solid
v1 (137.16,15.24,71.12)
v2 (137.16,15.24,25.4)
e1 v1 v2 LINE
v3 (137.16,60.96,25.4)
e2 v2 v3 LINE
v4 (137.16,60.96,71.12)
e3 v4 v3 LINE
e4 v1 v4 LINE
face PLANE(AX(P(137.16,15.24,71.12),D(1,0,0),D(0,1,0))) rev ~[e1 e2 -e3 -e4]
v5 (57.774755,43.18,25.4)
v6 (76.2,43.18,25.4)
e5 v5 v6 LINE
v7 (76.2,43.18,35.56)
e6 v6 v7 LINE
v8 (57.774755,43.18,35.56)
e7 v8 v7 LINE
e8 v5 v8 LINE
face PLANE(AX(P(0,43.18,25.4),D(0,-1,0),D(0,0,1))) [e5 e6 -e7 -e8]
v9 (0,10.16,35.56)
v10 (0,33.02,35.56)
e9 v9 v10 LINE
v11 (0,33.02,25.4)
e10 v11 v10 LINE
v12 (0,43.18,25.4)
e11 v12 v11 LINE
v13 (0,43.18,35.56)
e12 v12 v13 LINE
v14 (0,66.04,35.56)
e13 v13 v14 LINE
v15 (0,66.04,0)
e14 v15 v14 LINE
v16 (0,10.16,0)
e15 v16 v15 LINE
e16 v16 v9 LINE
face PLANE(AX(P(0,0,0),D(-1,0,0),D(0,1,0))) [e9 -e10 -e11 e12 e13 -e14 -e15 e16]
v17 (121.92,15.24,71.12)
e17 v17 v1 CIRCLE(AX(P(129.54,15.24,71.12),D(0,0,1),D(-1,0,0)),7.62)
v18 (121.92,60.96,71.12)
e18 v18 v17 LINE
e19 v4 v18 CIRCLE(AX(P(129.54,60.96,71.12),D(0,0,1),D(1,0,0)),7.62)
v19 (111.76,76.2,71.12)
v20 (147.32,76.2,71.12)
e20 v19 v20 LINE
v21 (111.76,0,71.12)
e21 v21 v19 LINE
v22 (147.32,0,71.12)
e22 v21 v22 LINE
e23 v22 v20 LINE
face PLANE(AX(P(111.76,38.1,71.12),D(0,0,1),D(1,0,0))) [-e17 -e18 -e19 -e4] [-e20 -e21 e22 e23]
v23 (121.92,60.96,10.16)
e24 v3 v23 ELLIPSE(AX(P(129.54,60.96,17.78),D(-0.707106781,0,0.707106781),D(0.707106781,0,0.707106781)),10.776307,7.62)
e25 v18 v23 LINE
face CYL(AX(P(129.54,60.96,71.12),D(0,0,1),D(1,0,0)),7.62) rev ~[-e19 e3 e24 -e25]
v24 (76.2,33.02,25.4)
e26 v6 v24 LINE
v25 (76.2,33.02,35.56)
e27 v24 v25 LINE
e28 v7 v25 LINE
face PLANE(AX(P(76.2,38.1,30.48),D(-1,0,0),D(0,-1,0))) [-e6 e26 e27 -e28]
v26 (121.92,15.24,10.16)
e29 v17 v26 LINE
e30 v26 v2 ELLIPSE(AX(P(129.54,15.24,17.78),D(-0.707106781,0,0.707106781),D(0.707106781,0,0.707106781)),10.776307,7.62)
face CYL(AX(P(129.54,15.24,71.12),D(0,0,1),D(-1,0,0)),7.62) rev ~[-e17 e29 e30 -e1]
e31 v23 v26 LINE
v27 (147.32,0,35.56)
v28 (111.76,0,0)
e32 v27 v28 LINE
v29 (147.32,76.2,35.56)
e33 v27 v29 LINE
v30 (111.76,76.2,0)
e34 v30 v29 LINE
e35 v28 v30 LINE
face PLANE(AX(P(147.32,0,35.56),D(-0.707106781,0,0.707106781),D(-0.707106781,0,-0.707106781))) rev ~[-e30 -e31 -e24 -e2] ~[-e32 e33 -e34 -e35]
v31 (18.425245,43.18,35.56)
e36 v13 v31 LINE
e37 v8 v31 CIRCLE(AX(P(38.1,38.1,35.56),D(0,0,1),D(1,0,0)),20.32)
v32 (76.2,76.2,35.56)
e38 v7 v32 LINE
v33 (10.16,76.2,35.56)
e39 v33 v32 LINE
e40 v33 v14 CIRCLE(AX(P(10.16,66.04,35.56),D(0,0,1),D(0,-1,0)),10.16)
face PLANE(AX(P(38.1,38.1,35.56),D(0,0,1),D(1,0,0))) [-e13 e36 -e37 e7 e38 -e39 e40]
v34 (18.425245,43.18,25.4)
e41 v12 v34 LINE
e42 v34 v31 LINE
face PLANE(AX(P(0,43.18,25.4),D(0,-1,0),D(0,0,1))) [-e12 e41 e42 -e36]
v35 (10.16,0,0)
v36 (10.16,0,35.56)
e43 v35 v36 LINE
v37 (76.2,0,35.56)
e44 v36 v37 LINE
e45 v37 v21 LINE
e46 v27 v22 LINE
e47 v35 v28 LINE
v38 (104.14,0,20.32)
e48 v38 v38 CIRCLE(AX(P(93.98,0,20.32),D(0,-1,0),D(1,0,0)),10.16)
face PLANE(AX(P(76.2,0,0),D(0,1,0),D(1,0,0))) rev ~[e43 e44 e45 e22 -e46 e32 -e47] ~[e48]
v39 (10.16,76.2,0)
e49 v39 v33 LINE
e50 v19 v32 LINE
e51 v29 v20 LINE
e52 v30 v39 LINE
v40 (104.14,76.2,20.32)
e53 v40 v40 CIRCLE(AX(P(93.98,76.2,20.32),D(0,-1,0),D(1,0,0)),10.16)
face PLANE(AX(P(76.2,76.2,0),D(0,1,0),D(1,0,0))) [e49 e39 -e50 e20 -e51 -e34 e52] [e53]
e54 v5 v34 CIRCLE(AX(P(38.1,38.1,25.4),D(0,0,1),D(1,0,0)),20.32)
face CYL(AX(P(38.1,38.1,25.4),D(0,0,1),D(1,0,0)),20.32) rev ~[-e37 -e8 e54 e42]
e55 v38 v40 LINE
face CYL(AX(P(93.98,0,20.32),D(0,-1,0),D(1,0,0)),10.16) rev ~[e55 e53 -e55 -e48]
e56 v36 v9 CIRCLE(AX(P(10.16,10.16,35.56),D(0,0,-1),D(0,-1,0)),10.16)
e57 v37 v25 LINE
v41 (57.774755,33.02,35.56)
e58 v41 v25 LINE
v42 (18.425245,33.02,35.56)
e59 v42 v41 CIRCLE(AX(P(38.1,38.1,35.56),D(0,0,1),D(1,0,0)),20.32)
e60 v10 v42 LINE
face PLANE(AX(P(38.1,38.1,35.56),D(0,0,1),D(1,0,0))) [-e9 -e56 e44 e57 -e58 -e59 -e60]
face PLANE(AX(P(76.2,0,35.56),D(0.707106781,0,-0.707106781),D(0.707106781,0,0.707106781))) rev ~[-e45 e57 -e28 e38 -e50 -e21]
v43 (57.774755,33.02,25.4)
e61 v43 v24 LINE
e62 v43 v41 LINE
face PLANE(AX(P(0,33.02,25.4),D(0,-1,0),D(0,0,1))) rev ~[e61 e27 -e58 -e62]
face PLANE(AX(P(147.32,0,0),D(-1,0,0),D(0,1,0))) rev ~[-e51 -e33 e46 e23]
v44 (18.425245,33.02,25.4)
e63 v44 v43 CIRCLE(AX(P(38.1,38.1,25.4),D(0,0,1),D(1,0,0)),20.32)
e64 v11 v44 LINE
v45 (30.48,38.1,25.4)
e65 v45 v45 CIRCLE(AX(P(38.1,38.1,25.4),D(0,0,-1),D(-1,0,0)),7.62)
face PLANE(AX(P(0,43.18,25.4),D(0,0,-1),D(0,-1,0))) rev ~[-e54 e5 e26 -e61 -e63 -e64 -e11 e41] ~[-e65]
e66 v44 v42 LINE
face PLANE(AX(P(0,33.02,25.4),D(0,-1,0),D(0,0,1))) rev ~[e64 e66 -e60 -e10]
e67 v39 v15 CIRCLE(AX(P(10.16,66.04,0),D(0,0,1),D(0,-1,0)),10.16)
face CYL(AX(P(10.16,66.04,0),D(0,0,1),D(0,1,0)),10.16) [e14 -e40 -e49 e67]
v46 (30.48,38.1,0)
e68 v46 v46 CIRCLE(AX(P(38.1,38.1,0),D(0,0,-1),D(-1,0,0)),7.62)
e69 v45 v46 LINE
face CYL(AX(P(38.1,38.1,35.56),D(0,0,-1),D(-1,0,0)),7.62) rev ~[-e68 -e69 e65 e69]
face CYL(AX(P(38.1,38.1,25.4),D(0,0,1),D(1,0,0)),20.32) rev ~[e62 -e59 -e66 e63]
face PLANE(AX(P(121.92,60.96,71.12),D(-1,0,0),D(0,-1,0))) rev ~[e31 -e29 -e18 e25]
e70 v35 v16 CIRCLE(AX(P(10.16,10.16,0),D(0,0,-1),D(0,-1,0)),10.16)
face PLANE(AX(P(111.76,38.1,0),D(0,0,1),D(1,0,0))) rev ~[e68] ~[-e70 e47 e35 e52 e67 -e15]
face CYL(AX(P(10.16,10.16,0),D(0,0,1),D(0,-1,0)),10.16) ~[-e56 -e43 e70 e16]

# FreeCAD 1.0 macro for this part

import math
import FreeCAD as App
import Part
import Sketcher
from FreeCAD import Vector
Q = App.Units.Quantity


def edges_at(feature, points):
    """Names of the edges that pass closest to the given points."""
    edges = feature.Shape.Edges
    near = lambda p: min(range(len(edges)), key=lambda i: edges[i].distToShape(Part.Vertex(*p))[0])
    return sorted({f"Edge{near(p) + 1}" for p in points})

doc = App.newDocument("Part")
body = doc.addObject("PartDesign::Body", "Body")

sketch1 = body.newObject("Sketcher::SketchObject", "Sketch")
sketch1.AttachmentSupport = (doc.getObject("XY_Plane"), [""])
sketch1.MapMode = "FlatFace"
sketch1.addGeometry([
    Part.LineSegment(Vector(0, 76.2, 0), Vector(0, 0, 0)),
    Part.LineSegment(Vector(0, 0, 0), Vector(76.2, 0, 0)),
    Part.LineSegment(Vector(76.2, 0, 0), Vector(76.2, 76.2, 0)),
    Part.LineSegment(Vector(76.2, 76.2, 0), Vector(0, 76.2, 0)),
], False)
sketch1.addConstraint([
    Sketcher.Constraint("Coincident", 0, 2, 1, 1),
    Sketcher.Constraint("Coincident", 1, 2, 2, 1),
    Sketcher.Constraint("Coincident", 2, 2, 3, 1),
    Sketcher.Constraint("Coincident", 3, 2, 0, 1),
    Sketcher.Constraint("Vertical", 0),
    Sketcher.Constraint("Horizontal", 1),
    Sketcher.Constraint("Vertical", 2),
    Sketcher.Constraint("Horizontal", 3),
    Sketcher.Constraint("Coincident", 0, 2, -1, 1),
    Sketcher.Constraint("Equal", 3, 0),
    Sketcher.Constraint("DistanceX", 1, 1, 1, 2, Q("3 in")),
])
pad1 = body.newObject("PartDesign::Pad", "Pad")
pad1.Profile = sketch1
pad1.Length = Q("1.4 in")

sketch2 = body.newObject("Sketcher::SketchObject", "Sketch001")
sketch2.AttachmentSupport = (doc.getObject("XY_Plane"), [""])
sketch2.MapMode = "FlatFace"
sketch2.addGeometry([
    Part.LineSegment(Vector(76.2, 76.2, 0), Vector(76.2, 0, 0)),
    Part.LineSegment(Vector(76.2, 0, 0), Vector(147.32, 0, 0)),
    Part.LineSegment(Vector(147.32, 0, 0), Vector(147.32, 76.2, 0)),
    Part.LineSegment(Vector(147.32, 76.2, 0), Vector(76.2, 76.2, 0)),
], False)
sketch2.addConstraint([
    Sketcher.Constraint("Coincident", 0, 2, 1, 1),
    Sketcher.Constraint("Coincident", 1, 2, 2, 1),
    Sketcher.Constraint("Coincident", 2, 2, 3, 1),
    Sketcher.Constraint("Coincident", 3, 2, 0, 1),
    Sketcher.Constraint("Vertical", 0),
    Sketcher.Constraint("Horizontal", 1),
    Sketcher.Constraint("Vertical", 2),
    Sketcher.Constraint("Horizontal", 3),
    Sketcher.Constraint("PointOnObject", 0, 2, -1),
    Sketcher.Constraint("DistanceY", 0, 2, 0, 1, Q("3 in")),
    Sketcher.Constraint("DistanceX", 1, 1, 1, 2, Q("2.8 in")),
    Sketcher.Constraint("DistanceX", -1, 1, 0, 2, Q("3 in")),
])
pad2 = body.newObject("PartDesign::Pad", "Pad001")
pad2.Profile = sketch2
pad2.Length = Q("2.8 in")

sketch3 = body.newObject("Sketcher::SketchObject", "Sketch002")
sketch3.AttachmentSupport = (doc.getObject("XZ_Plane"), [""])
sketch3.MapMode = "FlatFace"
sketch3.addGeometry([
    Part.LineSegment(Vector(76.2, 35.56, 0), Vector(111.76, 71.12, 0)),
    Part.LineSegment(Vector(111.76, 71.12, 0), Vector(76.2, 71.12, 0)),
    Part.LineSegment(Vector(76.2, 71.12, 0), Vector(76.2, 35.56, 0)),
    Part.LineSegment(Vector(111.76, 0, 0), Vector(147.32, 0, 0)),
    Part.LineSegment(Vector(147.32, 0, 0), Vector(147.32, 35.56, 0)),
    Part.LineSegment(Vector(147.32, 35.56, 0), Vector(111.76, 0, 0)),
], False)
sketch3.addConstraint([
    Sketcher.Constraint("Coincident", 0, 2, 1, 1),
    Sketcher.Constraint("Coincident", 1, 2, 2, 1),
    Sketcher.Constraint("Coincident", 2, 2, 0, 1),
    Sketcher.Constraint("Coincident", 3, 2, 4, 1),
    Sketcher.Constraint("Coincident", 4, 2, 5, 1),
    Sketcher.Constraint("Coincident", 5, 2, 3, 1),
    Sketcher.Constraint("Horizontal", 1),
    Sketcher.Constraint("Vertical", 2),
    Sketcher.Constraint("Horizontal", 3),
    Sketcher.Constraint("Vertical", 4),
    Sketcher.Constraint("PointOnObject", 3, 2, -1),
    Sketcher.Constraint("Parallel", 0, 5),
    Sketcher.Constraint("Horizontal", 2, 2, 4, 2),
    Sketcher.Constraint("Vertical", 0, 2, 5, 2),
    Sketcher.Constraint("Equal", 1, 3),
    Sketcher.Constraint("Equal", 3, 2),
    Sketcher.Constraint("DistanceX", 1, 2, 1, 1, Q("1.4 in")),
    Sketcher.Constraint("DistanceX", -1, 1, 1, 2, Q("3 in")),
])
pocket1 = body.newObject("PartDesign::Pocket", "Pocket")
pocket1.Profile = sketch3
pocket1.Type = "ThroughAll"

sketch4 = body.newObject("Sketcher::SketchObject", "Sketch003")
sketch4.AttachmentSupport = (doc.getObject("XZ_Plane"), [""])
sketch4.MapMode = "FlatFace"
sketch4.addGeometry(Part.Circle(Vector(93.98, 20.32, 0), Vector(0, 0, 1), 10.16), False)
sketch4.addConstraint([
    Sketcher.Constraint("Diameter", 0, Q("0.8 in")),
    Sketcher.Constraint("DistanceX", -1, 1, 0, 3, Q("3.7 in")),
    Sketcher.Constraint("DistanceY", -1, 1, 0, 3, Q("0.8 in")),
])
pocket2 = body.newObject("PartDesign::Pocket", "Pocket001")
pocket2.Profile = sketch4
pocket2.Type = "ThroughAll"

sketch5 = body.newObject("Sketcher::SketchObject", "Sketch004")
sketch5.AttachmentSupport = (doc.getObject("XY_Plane"), [""])
sketch5.MapMode = "FlatFace"
sketch5.AttachmentOffset = App.Placement(Vector(0, 0, 2.8 * 25.4), App.Rotation())
sketch5.addGeometry([
    Part.ArcOfCircle(Part.Circle(Vector(129.54, 60.96, 0), Vector(0, 0, 1), 7.62), math.radians(0), math.radians(180)),
    Part.LineSegment(Vector(121.92, 60.96, 0), Vector(121.92, 15.24, 0)),
    Part.ArcOfCircle(Part.Circle(Vector(129.54, 15.24, 0), Vector(0, 0, 1), 7.62), math.radians(180), math.radians(360)),
    Part.LineSegment(Vector(137.16, 15.24, 0), Vector(137.16, 60.96, 0)),
], False)
sketch5.addConstraint([
    Sketcher.Constraint("Tangent", 0, 2, 1, 1),
    Sketcher.Constraint("Tangent", 1, 2, 2, 1),
    Sketcher.Constraint("Tangent", 2, 2, 3, 1),
    Sketcher.Constraint("Tangent", 3, 2, 0, 1),
    Sketcher.Constraint("Vertical", 1),
    Sketcher.Constraint("Vertical", 3),
    Sketcher.Constraint("Radius", 0, Q("0.3 in")),
    Sketcher.Constraint("DistanceY", 1, 2, 1, 1, Q("1.8 in")),
    Sketcher.Constraint("DistanceX", -1, 1, 0, 3, Q("5.1 in")),
    Sketcher.Constraint("DistanceY", -1, 1, 0, 3, Q("2.4 in")),
])
pocket3 = body.newObject("PartDesign::Pocket", "Pocket002")
pocket3.Profile = sketch5
pocket3.Type = "ThroughAll"

sketch6 = body.newObject("Sketcher::SketchObject", "Sketch005")
sketch6.AttachmentSupport = (doc.getObject("XY_Plane"), [""])
sketch6.MapMode = "FlatFace"
sketch6.AttachmentOffset = App.Placement(Vector(0, 0, 1.4 * 25.4), App.Rotation())
sketch6.addGeometry(Part.Circle(Vector(38.1, 38.1, 0), Vector(0, 0, 1), 7.62), False)
sketch6.addConstraint([
    Sketcher.Constraint("Diameter", 0, Q("0.6 in")),
    Sketcher.Constraint("DistanceX", -1, 1, 0, 3, Q("1.5 in")),
    Sketcher.Constraint("DistanceY", -1, 1, 0, 3, Q("1.5 in")),
])
doc.recompute()
hole = body.newObject("PartDesign::Hole", "Hole")
hole.Profile = sketch6
hole.ThreadType = "None"
hole.Diameter = Q("0.6 in")
hole.DepthType = "ThroughAll"
hole.HoleCutType = "Counterbore"
hole.HoleCutDiameter = Q("1.6 in")
hole.HoleCutDepth = Q("0.4 in")

sketch7 = body.newObject("Sketcher::SketchObject", "Sketch006")
sketch7.AttachmentSupport = (doc.getObject("YZ_Plane"), [""])
sketch7.MapMode = "FlatFace"
sketch7.addGeometry([
    Part.LineSegment(Vector(43.18, 35.56, 0), Vector(43.18, 25.4, 0)),
    Part.LineSegment(Vector(43.18, 25.4, 0), Vector(33.02, 25.4, 0)),
    Part.LineSegment(Vector(33.02, 25.4, 0), Vector(33.02, 35.56, 0)),
    Part.LineSegment(Vector(33.02, 35.56, 0), Vector(43.18, 35.56, 0)),
], False)
sketch7.addConstraint([
    Sketcher.Constraint("Coincident", 0, 2, 1, 1),
    Sketcher.Constraint("Coincident", 1, 2, 2, 1),
    Sketcher.Constraint("Coincident", 2, 2, 3, 1),
    Sketcher.Constraint("Coincident", 3, 2, 0, 1),
    Sketcher.Constraint("Vertical", 0),
    Sketcher.Constraint("Horizontal", 1),
    Sketcher.Constraint("Vertical", 2),
    Sketcher.Constraint("Horizontal", 3),
    Sketcher.Constraint("Equal", 3, 0),
    Sketcher.Constraint("DistanceX", 1, 2, 1, 1, Q("0.4 in")),
    Sketcher.Constraint("DistanceY", -1, 1, 0, 2, Q("1 in")),
    Sketcher.Constraint("DistanceX", -1, 1, 0, 2, Q("1.7 in")),
])
pocket4 = body.newObject("PartDesign::Pocket", "Pocket003")
pocket4.Profile = sketch7
pocket4.Length = Q("3 in")
pocket4.Reversed = True
doc.recompute()

fillet = body.newObject("PartDesign::Fillet", "Fillet")
fillet.Base = (pocket4, edges_at(pocket4, [(0, 76.2, 17.78), (0, 0, 17.78)]))
fillet.Radius = Q("0.4 in")

doc.recompute()
